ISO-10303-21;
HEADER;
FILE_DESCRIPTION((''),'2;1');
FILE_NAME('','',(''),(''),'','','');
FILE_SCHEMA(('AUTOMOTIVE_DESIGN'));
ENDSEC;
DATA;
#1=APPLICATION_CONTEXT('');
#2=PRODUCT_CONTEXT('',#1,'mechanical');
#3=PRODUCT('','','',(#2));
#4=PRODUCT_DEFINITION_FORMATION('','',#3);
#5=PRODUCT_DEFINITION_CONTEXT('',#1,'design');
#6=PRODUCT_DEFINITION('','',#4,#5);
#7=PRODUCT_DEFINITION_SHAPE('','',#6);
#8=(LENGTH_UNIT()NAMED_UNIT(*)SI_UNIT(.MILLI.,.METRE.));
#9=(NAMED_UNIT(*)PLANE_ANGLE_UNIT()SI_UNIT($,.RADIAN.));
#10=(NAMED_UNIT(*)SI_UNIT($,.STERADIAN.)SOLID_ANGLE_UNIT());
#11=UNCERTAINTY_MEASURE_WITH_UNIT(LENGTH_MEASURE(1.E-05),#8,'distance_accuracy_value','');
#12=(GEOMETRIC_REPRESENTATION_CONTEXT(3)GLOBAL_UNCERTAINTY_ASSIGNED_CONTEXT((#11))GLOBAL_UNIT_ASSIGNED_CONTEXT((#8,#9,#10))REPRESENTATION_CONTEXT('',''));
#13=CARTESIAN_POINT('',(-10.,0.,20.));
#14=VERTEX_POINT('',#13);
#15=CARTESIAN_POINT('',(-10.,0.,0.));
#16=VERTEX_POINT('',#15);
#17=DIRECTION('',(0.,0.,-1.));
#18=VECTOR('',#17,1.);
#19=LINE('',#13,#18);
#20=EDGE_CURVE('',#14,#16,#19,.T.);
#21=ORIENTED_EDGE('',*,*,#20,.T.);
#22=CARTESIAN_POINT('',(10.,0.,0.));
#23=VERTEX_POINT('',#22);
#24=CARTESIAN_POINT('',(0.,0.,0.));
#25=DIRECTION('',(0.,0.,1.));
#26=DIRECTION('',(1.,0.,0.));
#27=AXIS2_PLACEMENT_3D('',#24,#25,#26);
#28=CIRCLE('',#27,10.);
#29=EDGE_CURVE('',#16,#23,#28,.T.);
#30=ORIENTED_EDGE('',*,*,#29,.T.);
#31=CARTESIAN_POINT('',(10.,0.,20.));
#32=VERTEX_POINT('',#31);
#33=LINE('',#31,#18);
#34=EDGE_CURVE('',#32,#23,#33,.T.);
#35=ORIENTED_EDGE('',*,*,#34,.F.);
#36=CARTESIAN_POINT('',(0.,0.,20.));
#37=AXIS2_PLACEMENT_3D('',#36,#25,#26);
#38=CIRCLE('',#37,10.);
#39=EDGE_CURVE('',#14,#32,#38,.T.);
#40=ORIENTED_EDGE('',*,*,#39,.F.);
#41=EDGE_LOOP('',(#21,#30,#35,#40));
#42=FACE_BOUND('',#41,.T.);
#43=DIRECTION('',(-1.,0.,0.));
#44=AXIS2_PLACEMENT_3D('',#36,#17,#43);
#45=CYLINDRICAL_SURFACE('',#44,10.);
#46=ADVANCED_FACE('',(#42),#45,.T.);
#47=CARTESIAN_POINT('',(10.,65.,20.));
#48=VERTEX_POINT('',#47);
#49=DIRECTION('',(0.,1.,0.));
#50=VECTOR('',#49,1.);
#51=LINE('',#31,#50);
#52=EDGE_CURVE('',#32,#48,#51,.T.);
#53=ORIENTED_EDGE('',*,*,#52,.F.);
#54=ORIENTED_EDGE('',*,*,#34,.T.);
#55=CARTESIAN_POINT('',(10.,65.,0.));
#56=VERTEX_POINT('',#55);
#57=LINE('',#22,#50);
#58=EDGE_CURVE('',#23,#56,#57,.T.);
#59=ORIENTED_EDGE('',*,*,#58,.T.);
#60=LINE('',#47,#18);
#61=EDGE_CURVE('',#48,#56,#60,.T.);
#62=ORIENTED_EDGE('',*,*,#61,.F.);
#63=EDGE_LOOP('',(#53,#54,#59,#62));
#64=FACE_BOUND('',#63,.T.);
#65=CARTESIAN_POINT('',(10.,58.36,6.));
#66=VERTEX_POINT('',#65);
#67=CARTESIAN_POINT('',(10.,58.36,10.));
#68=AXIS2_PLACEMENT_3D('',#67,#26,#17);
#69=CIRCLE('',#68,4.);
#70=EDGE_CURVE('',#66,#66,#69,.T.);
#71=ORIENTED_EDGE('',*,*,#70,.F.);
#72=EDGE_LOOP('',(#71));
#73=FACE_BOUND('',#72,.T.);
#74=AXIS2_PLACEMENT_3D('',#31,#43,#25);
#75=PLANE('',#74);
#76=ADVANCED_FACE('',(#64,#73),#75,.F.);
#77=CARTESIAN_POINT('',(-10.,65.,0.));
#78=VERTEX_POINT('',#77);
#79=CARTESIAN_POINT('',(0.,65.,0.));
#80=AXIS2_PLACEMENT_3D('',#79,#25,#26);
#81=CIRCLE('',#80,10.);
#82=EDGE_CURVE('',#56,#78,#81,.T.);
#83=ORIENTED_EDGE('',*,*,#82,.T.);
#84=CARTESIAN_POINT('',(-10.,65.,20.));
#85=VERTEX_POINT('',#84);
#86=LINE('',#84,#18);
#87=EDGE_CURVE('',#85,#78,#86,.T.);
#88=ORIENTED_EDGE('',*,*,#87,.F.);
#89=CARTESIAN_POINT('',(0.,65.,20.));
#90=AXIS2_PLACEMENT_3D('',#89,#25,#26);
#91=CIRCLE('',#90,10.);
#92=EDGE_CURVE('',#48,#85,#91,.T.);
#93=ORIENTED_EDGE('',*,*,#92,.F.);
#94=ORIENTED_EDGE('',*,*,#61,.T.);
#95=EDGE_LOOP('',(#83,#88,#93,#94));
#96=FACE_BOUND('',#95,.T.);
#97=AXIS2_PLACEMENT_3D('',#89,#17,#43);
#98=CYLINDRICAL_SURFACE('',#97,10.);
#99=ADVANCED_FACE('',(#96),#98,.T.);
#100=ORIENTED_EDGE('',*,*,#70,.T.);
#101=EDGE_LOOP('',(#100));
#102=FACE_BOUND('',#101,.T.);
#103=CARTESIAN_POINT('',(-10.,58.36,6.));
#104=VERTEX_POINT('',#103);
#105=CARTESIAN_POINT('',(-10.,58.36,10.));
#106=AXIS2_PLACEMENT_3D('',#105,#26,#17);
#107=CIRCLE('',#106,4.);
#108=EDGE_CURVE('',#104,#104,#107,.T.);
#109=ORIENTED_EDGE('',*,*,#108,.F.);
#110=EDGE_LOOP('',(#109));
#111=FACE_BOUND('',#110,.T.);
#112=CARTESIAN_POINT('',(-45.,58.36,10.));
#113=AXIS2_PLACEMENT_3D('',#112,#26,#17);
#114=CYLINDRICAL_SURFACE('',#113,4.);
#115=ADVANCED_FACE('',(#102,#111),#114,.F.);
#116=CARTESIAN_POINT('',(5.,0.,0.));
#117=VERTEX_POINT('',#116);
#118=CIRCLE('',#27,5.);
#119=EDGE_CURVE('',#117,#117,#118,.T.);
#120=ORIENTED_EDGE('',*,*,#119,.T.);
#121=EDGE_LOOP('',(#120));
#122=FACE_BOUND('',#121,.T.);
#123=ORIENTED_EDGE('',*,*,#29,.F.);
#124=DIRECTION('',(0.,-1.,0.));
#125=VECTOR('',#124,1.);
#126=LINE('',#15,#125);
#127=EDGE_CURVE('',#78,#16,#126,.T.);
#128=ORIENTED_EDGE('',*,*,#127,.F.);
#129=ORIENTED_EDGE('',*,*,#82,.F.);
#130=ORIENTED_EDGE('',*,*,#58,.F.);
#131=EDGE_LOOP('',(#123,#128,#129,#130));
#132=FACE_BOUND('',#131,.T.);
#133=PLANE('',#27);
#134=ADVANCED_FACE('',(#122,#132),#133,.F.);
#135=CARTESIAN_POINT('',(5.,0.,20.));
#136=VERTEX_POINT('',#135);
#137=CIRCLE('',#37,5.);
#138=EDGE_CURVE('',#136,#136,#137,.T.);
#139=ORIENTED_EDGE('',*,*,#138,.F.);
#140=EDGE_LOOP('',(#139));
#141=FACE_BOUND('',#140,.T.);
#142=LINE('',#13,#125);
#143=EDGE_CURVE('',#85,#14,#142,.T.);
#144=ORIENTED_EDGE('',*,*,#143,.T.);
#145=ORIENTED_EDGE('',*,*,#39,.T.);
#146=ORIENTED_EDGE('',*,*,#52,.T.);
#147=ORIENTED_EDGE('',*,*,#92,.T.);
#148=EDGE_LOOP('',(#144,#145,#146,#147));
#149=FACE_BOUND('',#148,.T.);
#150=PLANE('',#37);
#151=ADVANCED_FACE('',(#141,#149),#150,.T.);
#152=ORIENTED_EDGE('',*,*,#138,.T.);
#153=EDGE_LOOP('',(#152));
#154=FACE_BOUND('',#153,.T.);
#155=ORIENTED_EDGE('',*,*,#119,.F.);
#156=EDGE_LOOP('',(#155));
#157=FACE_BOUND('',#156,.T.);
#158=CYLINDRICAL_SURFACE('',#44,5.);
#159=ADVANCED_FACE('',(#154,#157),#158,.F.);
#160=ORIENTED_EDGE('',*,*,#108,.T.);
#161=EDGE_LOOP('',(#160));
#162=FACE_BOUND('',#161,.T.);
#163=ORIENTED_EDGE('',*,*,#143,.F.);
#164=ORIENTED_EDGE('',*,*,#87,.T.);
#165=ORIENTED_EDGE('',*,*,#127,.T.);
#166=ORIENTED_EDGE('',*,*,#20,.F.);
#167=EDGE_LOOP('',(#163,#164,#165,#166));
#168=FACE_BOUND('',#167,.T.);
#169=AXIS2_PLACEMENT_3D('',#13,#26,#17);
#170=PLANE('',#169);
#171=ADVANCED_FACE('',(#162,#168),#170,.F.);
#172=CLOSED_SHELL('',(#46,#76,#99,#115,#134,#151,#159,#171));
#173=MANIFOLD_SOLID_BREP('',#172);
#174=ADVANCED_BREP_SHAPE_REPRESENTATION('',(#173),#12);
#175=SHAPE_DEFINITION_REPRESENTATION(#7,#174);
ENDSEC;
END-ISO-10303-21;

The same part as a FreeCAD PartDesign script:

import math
import FreeCAD as App
import Part
import Sketcher

V = App.Vector
Q = App.Units.Quantity

doc = App.newDocument("Part")
body = doc.addObject("PartDesign::Body", "Body")

# Sketch on XY plane
sketch1 = body.newObject("Sketcher::SketchObject", "Sketch")
sketch1.AttachmentSupport = (doc.getObject("XY_Plane"), [""])
sketch1.MapMode = "FlatFace"
sketch1.addGeometry([
    Part.LineSegment(V(-10, 65, 0), V(-10, 0, 0)),  # 0
    Part.ArcOfCircle(Part.Circle(V(0, 0, 0), V(0, 0, 1), 10), math.radians(180), math.radians(360)),  # 1
    Part.LineSegment(V(10, 0, 0), V(10, 65, 0)),  # 2
    Part.ArcOfCircle(Part.Circle(V(0, 65, 0), V(0, 0, 1), 10), math.radians(0), math.radians(180)),  # 3
    Part.Circle(V(0, 0, 0), V(0, 0, 1), 5),  # 4
], False)
sketch1.addConstraint([
    Sketcher.Constraint("Tangent", 0, 2, 1, 1),
    Sketcher.Constraint("Tangent", 1, 2, 2, 1),
    Sketcher.Constraint("Tangent", 2, 2, 3, 1),
    Sketcher.Constraint("Tangent", 3, 2, 0, 1),
    Sketcher.Constraint("Vertical", 0),
    Sketcher.Constraint("Vertical", 2),
    Sketcher.Constraint("Coincident", 1, 3, -1, 1),
    Sketcher.Constraint("Coincident", 4, 3, -1, 1),
    Sketcher.Constraint("Diameter", 4, Q("10 mm")),
    Sketcher.Constraint("Radius", 1, Q("10 mm")),
    Sketcher.Constraint("DistanceY", 0, 2, 0, 1, Q("65 mm")),
])
pad1 = body.newObject("PartDesign::Pad", "Pad")
pad1.Profile = sketch1
pad1.Length = 20

# Sketch on YZ plane
sketch2 = body.newObject("Sketcher::SketchObject", "Sketch001")
sketch2.AttachmentSupport = (doc.getObject("YZ_Plane"), [""])
sketch2.MapMode = "FlatFace"
sketch2.AttachmentOffset = App.Placement(V(0, 0, 10), App.Rotation())
sketch2.addGeometry(Part.Circle(V(58.4, 10, 0), V(0, 0, 1), 4), False)
sketch2.addConstraint([
    Sketcher.Constraint("Diameter", 0, Q("8 mm")),
    Sketcher.Constraint("DistanceY", -1, 1, 0, 3, Q("10 mm")),
    Sketcher.Constraint("DistanceX", -1, 1, 0, 3, Q("58.36 mm")),
])
pocket1 = body.newObject("PartDesign::Pocket", "Pocket")
pocket1.Profile = sketch2
pocket1.Length = 55

doc.recompute()
